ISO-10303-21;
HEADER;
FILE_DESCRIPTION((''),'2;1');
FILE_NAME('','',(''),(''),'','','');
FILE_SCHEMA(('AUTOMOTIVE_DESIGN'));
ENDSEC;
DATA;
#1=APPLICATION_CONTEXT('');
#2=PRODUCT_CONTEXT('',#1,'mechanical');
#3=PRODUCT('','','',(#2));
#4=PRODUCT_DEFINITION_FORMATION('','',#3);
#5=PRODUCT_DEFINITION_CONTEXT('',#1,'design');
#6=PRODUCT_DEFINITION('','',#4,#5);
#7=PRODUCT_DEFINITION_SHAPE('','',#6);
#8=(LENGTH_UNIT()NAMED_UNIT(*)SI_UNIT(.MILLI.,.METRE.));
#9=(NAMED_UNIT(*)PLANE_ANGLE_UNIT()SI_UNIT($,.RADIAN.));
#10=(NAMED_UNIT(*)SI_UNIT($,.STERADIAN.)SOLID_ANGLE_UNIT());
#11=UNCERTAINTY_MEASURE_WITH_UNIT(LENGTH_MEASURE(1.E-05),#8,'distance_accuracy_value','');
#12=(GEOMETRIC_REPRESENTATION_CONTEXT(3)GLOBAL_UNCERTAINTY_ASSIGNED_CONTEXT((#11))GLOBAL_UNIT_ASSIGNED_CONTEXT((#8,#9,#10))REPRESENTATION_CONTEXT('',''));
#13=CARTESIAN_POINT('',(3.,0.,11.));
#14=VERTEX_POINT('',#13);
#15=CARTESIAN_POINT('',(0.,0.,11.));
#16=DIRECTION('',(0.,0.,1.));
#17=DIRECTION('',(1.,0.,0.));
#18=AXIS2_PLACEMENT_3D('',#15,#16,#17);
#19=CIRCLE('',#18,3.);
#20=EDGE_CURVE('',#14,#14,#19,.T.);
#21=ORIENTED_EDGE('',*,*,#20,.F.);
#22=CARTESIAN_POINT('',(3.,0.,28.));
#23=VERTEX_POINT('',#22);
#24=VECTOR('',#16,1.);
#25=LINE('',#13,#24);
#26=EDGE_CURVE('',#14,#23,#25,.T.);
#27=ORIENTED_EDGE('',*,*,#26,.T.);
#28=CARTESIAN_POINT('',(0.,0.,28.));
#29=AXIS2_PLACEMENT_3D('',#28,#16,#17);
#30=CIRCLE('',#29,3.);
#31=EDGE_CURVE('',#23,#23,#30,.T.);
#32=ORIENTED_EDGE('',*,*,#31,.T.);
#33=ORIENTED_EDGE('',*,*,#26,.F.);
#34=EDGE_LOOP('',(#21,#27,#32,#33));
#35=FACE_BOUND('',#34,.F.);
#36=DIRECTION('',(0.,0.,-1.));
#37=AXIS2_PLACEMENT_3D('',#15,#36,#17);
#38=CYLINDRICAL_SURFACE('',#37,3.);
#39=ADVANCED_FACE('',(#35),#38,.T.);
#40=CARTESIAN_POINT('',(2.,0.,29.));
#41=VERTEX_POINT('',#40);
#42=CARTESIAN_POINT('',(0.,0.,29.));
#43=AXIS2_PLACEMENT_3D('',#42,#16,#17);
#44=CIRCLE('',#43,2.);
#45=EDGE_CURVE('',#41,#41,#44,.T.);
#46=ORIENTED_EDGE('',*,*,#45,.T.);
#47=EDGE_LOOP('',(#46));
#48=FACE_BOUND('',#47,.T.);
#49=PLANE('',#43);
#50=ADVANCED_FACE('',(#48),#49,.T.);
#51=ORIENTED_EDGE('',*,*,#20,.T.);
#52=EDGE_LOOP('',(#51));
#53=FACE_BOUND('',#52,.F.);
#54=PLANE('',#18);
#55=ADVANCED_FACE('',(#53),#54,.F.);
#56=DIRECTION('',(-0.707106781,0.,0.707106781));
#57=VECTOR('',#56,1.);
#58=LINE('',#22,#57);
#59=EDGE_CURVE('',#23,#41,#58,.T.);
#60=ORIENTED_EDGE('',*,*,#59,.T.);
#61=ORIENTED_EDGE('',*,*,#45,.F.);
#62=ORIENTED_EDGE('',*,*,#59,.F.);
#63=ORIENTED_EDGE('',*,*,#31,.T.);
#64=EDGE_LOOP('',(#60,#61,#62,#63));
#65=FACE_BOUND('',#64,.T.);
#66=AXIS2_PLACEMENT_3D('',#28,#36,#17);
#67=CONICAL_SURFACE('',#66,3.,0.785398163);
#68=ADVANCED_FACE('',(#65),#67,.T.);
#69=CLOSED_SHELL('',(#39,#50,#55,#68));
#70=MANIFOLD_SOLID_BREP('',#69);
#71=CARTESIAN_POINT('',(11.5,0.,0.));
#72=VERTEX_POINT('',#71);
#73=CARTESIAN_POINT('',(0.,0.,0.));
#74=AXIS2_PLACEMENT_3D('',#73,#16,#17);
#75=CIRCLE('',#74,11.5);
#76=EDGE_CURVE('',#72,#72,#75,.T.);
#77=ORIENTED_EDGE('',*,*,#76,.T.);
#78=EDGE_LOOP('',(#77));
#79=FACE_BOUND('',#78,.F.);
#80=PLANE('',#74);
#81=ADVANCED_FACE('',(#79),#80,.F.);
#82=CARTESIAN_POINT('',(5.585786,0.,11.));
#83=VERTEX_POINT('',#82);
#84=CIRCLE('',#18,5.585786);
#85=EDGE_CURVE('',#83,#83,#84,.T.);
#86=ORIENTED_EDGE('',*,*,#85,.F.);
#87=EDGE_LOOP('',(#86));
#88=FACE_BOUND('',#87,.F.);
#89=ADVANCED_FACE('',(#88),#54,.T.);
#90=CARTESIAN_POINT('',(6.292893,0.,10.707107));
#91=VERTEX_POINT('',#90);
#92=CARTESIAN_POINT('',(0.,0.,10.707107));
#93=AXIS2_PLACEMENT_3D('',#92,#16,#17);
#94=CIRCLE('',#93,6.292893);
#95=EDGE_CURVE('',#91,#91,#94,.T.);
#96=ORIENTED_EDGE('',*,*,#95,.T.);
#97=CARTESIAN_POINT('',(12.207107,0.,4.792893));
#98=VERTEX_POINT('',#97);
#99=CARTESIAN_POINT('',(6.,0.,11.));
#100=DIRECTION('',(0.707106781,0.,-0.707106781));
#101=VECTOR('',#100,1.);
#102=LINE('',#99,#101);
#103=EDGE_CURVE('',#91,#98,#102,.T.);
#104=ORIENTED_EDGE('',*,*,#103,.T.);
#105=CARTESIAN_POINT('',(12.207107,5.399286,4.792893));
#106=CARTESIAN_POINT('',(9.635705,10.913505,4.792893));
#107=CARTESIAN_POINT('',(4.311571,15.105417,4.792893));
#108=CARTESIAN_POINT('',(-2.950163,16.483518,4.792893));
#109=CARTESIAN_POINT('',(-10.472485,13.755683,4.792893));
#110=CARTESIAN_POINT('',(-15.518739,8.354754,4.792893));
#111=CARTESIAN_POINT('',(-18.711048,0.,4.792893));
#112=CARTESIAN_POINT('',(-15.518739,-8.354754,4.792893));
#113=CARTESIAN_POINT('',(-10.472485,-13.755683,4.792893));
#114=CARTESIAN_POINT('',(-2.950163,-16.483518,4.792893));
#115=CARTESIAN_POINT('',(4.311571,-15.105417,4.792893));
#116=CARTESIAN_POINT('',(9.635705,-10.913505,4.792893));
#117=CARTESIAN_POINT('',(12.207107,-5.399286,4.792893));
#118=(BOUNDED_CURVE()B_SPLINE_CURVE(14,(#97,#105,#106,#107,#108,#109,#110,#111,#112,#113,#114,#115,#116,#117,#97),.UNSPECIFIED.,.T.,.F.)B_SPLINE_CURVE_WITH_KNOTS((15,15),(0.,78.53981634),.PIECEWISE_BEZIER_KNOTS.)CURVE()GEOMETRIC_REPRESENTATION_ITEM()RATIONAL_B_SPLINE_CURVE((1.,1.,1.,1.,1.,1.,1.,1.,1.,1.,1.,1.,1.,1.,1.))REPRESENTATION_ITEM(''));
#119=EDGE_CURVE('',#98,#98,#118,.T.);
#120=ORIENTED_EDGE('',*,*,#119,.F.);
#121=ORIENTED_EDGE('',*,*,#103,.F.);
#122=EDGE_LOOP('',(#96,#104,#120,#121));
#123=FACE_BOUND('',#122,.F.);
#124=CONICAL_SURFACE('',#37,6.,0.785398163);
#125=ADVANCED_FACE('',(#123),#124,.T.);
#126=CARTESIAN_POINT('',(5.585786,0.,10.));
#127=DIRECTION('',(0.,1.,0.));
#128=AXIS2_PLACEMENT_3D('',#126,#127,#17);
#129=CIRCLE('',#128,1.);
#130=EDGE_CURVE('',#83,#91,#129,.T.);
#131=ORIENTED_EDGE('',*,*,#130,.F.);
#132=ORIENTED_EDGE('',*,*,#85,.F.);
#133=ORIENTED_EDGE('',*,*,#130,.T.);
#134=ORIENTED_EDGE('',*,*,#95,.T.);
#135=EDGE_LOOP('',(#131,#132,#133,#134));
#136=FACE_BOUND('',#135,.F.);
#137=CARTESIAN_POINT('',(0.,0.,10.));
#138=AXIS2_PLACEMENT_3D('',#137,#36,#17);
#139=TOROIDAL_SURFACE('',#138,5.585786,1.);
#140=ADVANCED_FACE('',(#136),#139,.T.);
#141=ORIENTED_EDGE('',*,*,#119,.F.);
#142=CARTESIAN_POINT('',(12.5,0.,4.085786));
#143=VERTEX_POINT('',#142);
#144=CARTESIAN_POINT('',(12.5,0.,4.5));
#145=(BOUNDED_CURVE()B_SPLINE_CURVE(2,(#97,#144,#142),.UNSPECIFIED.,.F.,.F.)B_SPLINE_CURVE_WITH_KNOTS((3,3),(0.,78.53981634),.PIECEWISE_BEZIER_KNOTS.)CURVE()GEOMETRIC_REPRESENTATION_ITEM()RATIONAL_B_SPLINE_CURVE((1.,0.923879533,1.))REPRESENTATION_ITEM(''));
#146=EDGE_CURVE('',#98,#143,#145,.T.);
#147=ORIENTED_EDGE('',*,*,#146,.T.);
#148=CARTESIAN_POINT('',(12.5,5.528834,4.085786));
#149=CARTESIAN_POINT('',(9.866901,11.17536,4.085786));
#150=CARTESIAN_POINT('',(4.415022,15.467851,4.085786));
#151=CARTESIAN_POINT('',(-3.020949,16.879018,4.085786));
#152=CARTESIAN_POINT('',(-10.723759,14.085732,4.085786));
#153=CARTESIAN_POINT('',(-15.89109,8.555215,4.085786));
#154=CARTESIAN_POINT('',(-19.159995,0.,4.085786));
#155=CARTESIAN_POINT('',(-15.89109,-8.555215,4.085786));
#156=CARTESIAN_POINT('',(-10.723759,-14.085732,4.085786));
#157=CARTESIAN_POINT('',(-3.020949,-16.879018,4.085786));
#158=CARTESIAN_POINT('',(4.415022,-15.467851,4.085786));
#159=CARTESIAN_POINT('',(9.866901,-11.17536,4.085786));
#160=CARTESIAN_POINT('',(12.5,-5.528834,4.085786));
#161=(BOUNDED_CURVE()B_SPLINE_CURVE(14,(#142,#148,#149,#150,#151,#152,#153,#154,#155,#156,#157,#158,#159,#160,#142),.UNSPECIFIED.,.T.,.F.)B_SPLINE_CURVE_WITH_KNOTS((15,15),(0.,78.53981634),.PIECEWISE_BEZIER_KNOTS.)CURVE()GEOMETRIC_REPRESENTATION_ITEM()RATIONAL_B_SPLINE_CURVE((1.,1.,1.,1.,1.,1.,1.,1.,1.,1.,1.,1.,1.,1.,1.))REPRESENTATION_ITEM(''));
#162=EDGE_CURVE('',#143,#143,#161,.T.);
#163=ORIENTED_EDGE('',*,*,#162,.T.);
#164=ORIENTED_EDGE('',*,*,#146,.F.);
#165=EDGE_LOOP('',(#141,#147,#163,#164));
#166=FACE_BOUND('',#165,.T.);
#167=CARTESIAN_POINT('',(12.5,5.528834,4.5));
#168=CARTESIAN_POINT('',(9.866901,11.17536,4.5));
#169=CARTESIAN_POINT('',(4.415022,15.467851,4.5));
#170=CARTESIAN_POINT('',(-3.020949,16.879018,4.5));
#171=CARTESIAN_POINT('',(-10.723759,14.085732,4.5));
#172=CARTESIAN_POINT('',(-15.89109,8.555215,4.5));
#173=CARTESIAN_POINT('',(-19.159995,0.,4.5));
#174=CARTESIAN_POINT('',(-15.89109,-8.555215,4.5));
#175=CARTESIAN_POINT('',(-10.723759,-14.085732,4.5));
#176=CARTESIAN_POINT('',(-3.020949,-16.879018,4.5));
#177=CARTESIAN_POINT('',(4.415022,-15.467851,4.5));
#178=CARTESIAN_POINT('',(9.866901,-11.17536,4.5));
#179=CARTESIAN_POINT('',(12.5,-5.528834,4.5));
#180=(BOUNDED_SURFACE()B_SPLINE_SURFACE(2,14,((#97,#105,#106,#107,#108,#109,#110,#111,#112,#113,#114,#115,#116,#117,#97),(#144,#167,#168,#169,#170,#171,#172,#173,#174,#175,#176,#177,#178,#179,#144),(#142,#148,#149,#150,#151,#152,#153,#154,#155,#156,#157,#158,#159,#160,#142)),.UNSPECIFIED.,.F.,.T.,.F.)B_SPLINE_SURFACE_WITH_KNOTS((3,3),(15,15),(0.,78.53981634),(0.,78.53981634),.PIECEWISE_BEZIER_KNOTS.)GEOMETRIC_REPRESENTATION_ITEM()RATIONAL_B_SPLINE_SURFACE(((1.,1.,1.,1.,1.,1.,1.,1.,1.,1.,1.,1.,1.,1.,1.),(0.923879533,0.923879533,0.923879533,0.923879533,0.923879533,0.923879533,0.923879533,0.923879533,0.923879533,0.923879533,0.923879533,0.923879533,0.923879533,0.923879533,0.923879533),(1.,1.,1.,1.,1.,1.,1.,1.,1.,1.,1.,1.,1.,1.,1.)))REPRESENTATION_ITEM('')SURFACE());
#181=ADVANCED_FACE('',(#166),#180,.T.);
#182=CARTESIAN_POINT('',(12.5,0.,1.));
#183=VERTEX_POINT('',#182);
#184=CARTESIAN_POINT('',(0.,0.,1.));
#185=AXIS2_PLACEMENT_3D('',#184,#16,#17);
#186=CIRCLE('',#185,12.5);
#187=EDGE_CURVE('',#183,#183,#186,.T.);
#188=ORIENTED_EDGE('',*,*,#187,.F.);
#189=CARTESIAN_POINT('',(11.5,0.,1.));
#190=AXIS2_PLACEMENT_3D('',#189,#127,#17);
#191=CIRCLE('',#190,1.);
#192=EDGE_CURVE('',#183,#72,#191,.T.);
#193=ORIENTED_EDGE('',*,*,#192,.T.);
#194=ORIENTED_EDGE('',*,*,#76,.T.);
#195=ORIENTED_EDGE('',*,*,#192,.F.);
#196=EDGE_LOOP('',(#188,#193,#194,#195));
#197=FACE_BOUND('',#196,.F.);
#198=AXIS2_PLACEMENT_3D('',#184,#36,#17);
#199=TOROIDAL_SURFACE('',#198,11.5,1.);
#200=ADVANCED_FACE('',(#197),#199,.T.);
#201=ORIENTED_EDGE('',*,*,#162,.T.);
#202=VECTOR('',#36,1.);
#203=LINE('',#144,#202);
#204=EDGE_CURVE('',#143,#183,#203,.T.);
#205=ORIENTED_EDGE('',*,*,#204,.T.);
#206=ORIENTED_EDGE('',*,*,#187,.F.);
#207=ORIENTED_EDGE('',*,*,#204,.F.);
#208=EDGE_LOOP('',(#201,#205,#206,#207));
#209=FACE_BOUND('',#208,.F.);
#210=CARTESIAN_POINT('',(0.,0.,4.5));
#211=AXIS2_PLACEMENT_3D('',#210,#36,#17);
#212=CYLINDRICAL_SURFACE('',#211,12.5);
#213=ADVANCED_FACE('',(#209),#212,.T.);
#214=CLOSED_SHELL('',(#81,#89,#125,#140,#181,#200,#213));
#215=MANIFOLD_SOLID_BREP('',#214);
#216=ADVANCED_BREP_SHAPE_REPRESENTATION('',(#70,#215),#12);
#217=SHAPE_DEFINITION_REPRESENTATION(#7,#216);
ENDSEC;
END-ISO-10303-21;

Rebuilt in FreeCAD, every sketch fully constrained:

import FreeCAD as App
import Part
import Sketcher

V = App.Vector
Q = App.Units.Quantity


def edges_at(feature, points):
    """Names of the edges that pass closest to the given points."""
    edges = feature.Shape.Edges
    near = lambda p: min(range(len(edges)), key=lambda i: edges[i].distToShape(Part.Vertex(*p))[0])
    return sorted({f"Edge{near(p) + 1}" for p in points})

doc = App.newDocument("Part")
body = doc.addObject("PartDesign::Body", "Body")

# Sketch on XZ plane
sketch1 = doc.addObject("Sketcher::SketchObject", "Sketch")
body.addObject(sketch1)
sketch1.AttachmentSupport = (doc.XZ_Plane, [""])
sketch1.MapMode = "FlatFace"
sketch1.addGeometry([
    Part.LineSegment(V(6, 11, 0), V(0, 11, 0)),  # 0
    Part.LineSegment(V(0, 11, 0), V(0, 0, 0)),  # 1
    Part.LineSegment(V(0, 0, 0), V(12.5, 0, 0)),  # 2
    Part.LineSegment(V(12.5, 0, 0), V(12.5, 4.5, 0)),  # 3
    Part.LineSegment(V(12.5, 4.5, 0), V(6, 11, 0)),  # 4
], False)
sketch1.addConstraint([
    Sketcher.Constraint("Coincident", 0, 2, 1, 1),
    Sketcher.Constraint("Coincident", 1, 2, 2, 1),
    Sketcher.Constraint("Coincident", 2, 2, 3, 1),
    Sketcher.Constraint("Coincident", 3, 2, 4, 1),
    Sketcher.Constraint("Coincident", 4, 2, 0, 1),
    Sketcher.Constraint("Horizontal", 0),
    Sketcher.Constraint("Vertical", 1),
    Sketcher.Constraint("Horizontal", 2),
    Sketcher.Constraint("Vertical", 3),
    Sketcher.Constraint("Coincident", 1, 2, -1, 1),
    Sketcher.Constraint("DistanceX", 0, 2, 0, 1, 6.0),
    Sketcher.Constraint("DistanceY", 1, 2, 1, 1, 11.0),
    Sketcher.Constraint("Angle", 4, Q("135 deg")),
    Sketcher.Constraint("DistanceX", 2, 1, 2, 2, 12.5),
])
revolution = doc.addObject("PartDesign::Revolution", "Revolution")
body.addObject(revolution)
revolution.Profile = sketch1
revolution.ReferenceAxis = (sketch1, ["V_Axis"])
revolution.Angle = 360
doc.recompute()

fillet = doc.addObject("PartDesign::Fillet", "Fillet")
body.addObject(fillet)
fillet.Base = (revolution, edges_at(revolution, [(-12.5, 0, 0), (-12.5, 0, 4.5), (-6, 0, 11)]))
fillet.Radius = 1
body2 = doc.addObject("PartDesign::Body", "Body001")

# Sketch on XY plane
sketch2 = doc.addObject("Sketcher::SketchObject", "Sketch001")
body2.addObject(sketch2)
sketch2.AttachmentSupport = (doc.getObject("XY_Plane001"), [""])
sketch2.MapMode = "FlatFace"
sketch2.AttachmentOffset = App.Placement(V(0, 0, 11), App.Rotation())
sketch2.addGeometry(Part.Circle(V(0, 0, 0), V(0, 0, 1), 3), False)
sketch2.addConstraint([
    Sketcher.Constraint("Coincident", 0, 3, -1, 1),
    Sketcher.Constraint("Diameter", 0, 6.0),
])
pad1 = doc.addObject("PartDesign::Pad", "Pad")
body2.addObject(pad1)
pad1.Profile = sketch2
pad1.Length = 18
doc.recompute()

chamfer = doc.addObject("PartDesign::Chamfer", "Chamfer")
body2.addObject(chamfer)
chamfer.Base = (pad1, edges_at(pad1, [(-3, 0, 29)]))
chamfer.Size = 1

doc.recompute()
